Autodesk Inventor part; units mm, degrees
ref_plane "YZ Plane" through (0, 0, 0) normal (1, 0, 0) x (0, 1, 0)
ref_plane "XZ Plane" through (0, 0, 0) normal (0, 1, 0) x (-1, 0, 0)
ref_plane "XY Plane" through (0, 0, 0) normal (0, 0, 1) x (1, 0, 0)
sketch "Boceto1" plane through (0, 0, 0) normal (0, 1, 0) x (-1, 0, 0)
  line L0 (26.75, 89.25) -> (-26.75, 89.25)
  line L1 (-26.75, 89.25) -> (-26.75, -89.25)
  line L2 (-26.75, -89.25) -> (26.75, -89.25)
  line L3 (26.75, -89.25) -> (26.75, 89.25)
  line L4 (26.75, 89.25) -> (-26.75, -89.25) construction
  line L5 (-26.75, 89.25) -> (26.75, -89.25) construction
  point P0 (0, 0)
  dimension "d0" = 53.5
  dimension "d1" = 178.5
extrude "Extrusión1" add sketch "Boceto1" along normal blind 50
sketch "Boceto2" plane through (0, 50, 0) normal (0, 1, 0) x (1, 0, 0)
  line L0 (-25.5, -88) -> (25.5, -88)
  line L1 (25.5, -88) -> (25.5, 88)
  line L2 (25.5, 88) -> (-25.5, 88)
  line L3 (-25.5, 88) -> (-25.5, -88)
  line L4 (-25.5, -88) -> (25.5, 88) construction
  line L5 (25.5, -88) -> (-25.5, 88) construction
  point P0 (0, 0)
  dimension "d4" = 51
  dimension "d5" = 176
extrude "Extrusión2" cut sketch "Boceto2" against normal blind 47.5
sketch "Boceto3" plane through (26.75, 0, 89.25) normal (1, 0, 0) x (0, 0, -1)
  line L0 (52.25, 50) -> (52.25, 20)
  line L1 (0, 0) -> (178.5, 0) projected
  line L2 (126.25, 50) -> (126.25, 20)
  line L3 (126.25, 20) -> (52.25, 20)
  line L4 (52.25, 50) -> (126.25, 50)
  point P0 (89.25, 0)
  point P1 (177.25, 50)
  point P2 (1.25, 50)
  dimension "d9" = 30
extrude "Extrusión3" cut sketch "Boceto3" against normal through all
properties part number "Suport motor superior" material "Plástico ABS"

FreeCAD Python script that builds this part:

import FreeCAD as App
import Part
import Sketcher

V = App.Vector

doc = App.newDocument("Part")
body = doc.addObject("PartDesign::Body", "Body")

sketch1 = body.newObject("Sketcher::SketchObject", "Sketch")
sketch1.AttachmentSupport = (doc.getObject("XZ_Plane"), [""])
sketch1.MapMode = "FlatFace"
sketch1.addGeometry([
    Part.LineSegment(V(-27, -89, 0), V(-27, 89, 0)),
    Part.LineSegment(V(-27, 89, 0), V(27, 89, 0)),
    Part.LineSegment(V(27, 89, 0), V(27, -89, 0)),
    Part.LineSegment(V(27, -89, 0), V(-27, -89, 0)),
], False)
sketch1.addConstraint([
    Sketcher.Constraint("Coincident", 0, 2, 1, 1),
    Sketcher.Constraint("Coincident", 1, 2, 2, 1),
    Sketcher.Constraint("Coincident", 2, 2, 3, 1),
    Sketcher.Constraint("Coincident", 3, 2, 0, 1),
    Sketcher.Constraint("Vertical", 0),
    Sketcher.Constraint("Horizontal", 1),
    Sketcher.Constraint("Vertical", 2),
    Sketcher.Constraint("Horizontal", 3),
    Sketcher.Constraint("Symmetric", 0, 2, 2, 2, -1, 1),
    Sketcher.Constraint("DistanceX", 1, 1, 1, 2, 53.5),
    Sketcher.Constraint("DistanceY", 0, 1, 0, 2, 178.5),
])
pad1 = body.newObject("PartDesign::Pad", "Pad")
pad1.Profile = sketch1
pad1.Length = 50
pad1.Reversed = True

sketch2 = body.newObject("Sketcher::SketchObject", "Sketch001")
sketch2.AttachmentSupport = (doc.getObject("XZ_Plane"), [""])
sketch2.MapMode = "FlatFace"
sketch2.AttachmentOffset = App.Placement(V(0, 0, -50), App.Rotation())
sketch2.addGeometry([
    Part.LineSegment(V(-26, -88, 0), V(-26, 88, 0)),
    Part.LineSegment(V(-26, 88, 0), V(26, 88, 0)),
    Part.LineSegment(V(26, 88, 0), V(26, -88, 0)),
    Part.LineSegment(V(26, -88, 0), V(-26, -88, 0)),
], False)
sketch2.addConstraint([
    Sketcher.Constraint("Coincident", 0, 2, 1, 1),
    Sketcher.Constraint("Coincident", 1, 2, 2, 1),
    Sketcher.Constraint("Coincident", 2, 2, 3, 1),
    Sketcher.Constraint("Coincident", 3, 2, 0, 1),
    Sketcher.Constraint("Vertical", 0),
    Sketcher.Constraint("Horizontal", 1),
    Sketcher.Constraint("Vertical", 2),
    Sketcher.Constraint("Horizontal", 3),
    Sketcher.Constraint("Symmetric", 0, 2, 2, 2, -1, 1),
    Sketcher.Constraint("DistanceX", 1, 1, 1, 2, 51.0),
    Sketcher.Constraint("DistanceY", 0, 1, 0, 2, 176.0),
])
pocket1 = body.newObject("PartDesign::Pocket", "Pocket")
pocket1.Profile = sketch2
pocket1.Length = 47.5
pocket1.Reversed = True

sketch3 = body.newObject("Sketcher::SketchObject", "Sketch002")
sketch3.AttachmentSupport = (doc.getObject("YZ_Plane"), [""])
sketch3.MapMode = "FlatFace"
sketch3.AttachmentOffset = App.Placement(V(0, 0, 26.75), App.Rotation())
sketch3.addGeometry([
    Part.LineSegment(V(50, -37, 0), V(50, 37, 0)),
    Part.LineSegment(V(50, 37, 0), V(20, 37, 0)),
    Part.LineSegment(V(20, 37, 0), V(20, -37, 0)),
    Part.LineSegment(V(20, -37, 0), V(50, -37, 0)),
], False)
sketch3.addConstraint([
    Sketcher.Constraint("Coincident", 0, 2, 1, 1),
    Sketcher.Constraint("Coincident", 1, 2, 2, 1),
    Sketcher.Constraint("Coincident", 2, 2, 3, 1),
    Sketcher.Constraint("Coincident", 3, 2, 0, 1),
    Sketcher.Constraint("Vertical", 0),
    Sketcher.Constraint("Horizontal", 1),
    Sketcher.Constraint("Vertical", 2),
    Sketcher.Constraint("Horizontal", 3),
    Sketcher.Constraint("DistanceX", 1, 2, 1, 1, 30.0),
    Sketcher.Constraint("DistanceY", 0, 1, 0, 2, 74.0),
    Sketcher.Constraint("DistanceX", -1, 1, 0, 2, 50.0),
    Sketcher.Constraint("DistanceY", -1, 1, 0, 2, 37.0),
])
pocket2 = body.newObject("PartDesign::Pocket", "Pocket001")
pocket2.Profile = sketch3
pocket2.Type = "ThroughAll"

doc.recompute()
